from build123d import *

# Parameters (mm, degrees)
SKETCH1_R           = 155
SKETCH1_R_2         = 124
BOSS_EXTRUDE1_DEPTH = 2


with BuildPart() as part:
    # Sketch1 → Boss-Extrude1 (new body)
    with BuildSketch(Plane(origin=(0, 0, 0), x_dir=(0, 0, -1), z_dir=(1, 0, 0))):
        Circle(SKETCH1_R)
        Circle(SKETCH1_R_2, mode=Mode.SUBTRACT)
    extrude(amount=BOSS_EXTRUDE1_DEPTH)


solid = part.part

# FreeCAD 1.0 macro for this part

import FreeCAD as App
import Part
import Sketcher
Q = App.Units.Quantity

doc = App.newDocument("Part")
body = doc.addObject("PartDesign::Body", "Body")

# Sketch on YZ plane
sketch1 = body.newObject("Sketcher::SketchObject", "Sketch")
sketch1.AttachmentSupport = (doc.getObject("YZ_Plane"), [""])
sketch1.MapMode = "FlatFace"
sketch1.addGeometry([
    Part.Circle(App.Vector(0, 0, 0), App.Vector(0, 0, 1), 155),
    Part.Circle(App.Vector(0, 0, 0), App.Vector(0, 0, 1), 124),
], False)
sketch1.addConstraint([
    Sketcher.Constraint("Coincident", 0, 3, -1, 1),
    Sketcher.Constraint("Coincident", 1, 3, -1, 1),
    Sketcher.Constraint("Diameter", 0, Q("310 mm")),
    Sketcher.Constraint("Diameter", 1, Q("248 mm")),
])
pad1 = body.newObject("PartDesign::Pad", "Pad")
pad1.Profile = sketch1
pad1.Length = 2

doc.recompute()
